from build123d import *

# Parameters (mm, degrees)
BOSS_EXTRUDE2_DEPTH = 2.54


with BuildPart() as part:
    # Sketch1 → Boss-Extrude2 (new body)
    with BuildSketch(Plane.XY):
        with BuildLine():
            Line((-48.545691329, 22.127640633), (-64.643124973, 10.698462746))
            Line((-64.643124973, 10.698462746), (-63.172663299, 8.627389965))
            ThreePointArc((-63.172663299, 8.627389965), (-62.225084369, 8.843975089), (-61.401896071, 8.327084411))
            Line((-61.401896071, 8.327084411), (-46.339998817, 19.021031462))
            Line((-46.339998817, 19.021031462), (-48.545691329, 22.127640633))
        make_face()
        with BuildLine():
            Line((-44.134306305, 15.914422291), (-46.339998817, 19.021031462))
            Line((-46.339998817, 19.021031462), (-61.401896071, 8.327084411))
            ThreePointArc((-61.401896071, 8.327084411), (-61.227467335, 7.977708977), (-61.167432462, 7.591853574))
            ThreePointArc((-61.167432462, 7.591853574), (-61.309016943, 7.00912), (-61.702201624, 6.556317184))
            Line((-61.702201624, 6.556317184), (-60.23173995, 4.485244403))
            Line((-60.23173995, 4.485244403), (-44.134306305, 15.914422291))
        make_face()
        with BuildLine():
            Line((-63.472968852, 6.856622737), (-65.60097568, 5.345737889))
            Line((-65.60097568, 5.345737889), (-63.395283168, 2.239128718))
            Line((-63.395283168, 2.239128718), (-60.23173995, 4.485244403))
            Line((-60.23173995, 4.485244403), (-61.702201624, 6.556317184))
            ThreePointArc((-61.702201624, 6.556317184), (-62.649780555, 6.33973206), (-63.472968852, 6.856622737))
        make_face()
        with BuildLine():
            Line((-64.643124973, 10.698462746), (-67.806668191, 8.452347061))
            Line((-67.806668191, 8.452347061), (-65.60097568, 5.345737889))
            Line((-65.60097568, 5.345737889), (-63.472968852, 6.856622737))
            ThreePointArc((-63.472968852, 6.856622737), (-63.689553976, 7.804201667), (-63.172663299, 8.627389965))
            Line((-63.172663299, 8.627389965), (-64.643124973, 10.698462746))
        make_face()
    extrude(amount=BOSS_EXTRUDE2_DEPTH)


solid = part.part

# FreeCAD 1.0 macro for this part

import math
import FreeCAD as App
import Part
import Sketcher

V = App.Vector
Q = App.Units.Quantity

doc = App.newDocument("Part")
body = doc.addObject("PartDesign::Body", "Body")

sketch1 = body.newObject("Sketcher::SketchObject", "Sketch")
sketch1.AttachmentSupport = (doc.getObject("XY_Plane"), [""])
sketch1.MapMode = "FlatFace"
sketch1.addGeometry([
    Part.LineSegment(V(-48.545691, 22.127641, 0), V(-64.643125, 10.698463, 0)),
    Part.LineSegment(V(-64.643125, 10.698463, 0), V(-67.806668, 8.452347, 0)),
    Part.LineSegment(V(-67.806668, 8.452347, 0), V(-65.600976, 5.345738, 0)),
    Part.LineSegment(V(-65.600976, 5.345738, 0), V(-63.395283, 2.239129, 0)),
    Part.LineSegment(V(-63.395283, 2.239129, 0), V(-60.23174, 4.485244, 0)),
    Part.LineSegment(V(-60.23174, 4.485244, 0), V(-44.134306, 15.914422, 0)),
    Part.LineSegment(V(-44.134306, 15.914422, 0), V(-48.545691, 22.127641, 0)),
    Part.ArcOfCircle(Part.Circle(V(-62.437432, 7.591854, 0), V(0, 0, 1), 1.27), math.radians(35.374752), math.radians(125.374752)),
    Part.ArcOfCircle(Part.Circle(V(-62.437432, 7.591854, 0), V(0, 0, 1), 1.27), math.radians(0), math.radians(35.374752)),
    Part.ArcOfCircle(Part.Circle(V(-62.437432, 7.591854, 0), V(0, 0, 1), 1.27), math.radians(-54.625248), math.radians(0)),
    Part.ArcOfCircle(Part.Circle(V(-62.437432, 7.591854, 0), V(0, 0, 1), 1.27), math.radians(-144.625248), math.radians(-54.625248)),
    Part.ArcOfCircle(Part.Circle(V(-62.437432, 7.591854, 0), V(0, 0, 1), 1.27), math.radians(125.374752), math.radians(215.374752)),
], False)
sketch1.addConstraint([
    Sketcher.Constraint("Coincident", 0, 2, 1, 1),
    Sketcher.Constraint("Coincident", 1, 2, 2, 1),
    Sketcher.Constraint("Coincident", 2, 2, 3, 1),
    Sketcher.Constraint("Coincident", 3, 2, 4, 1),
    Sketcher.Constraint("Coincident", 4, 2, 5, 1),
    Sketcher.Constraint("Coincident", 5, 2, 6, 1),
    Sketcher.Constraint("Coincident", 6, 2, 0, 1),
    Sketcher.Constraint("Tangent", 7, 1, 8, 2),
    Sketcher.Constraint("Tangent", 8, 1, 9, 2),
    Sketcher.Constraint("Tangent", 9, 1, 10, 2),
    Sketcher.Constraint("Tangent", 10, 1, 11, 2),
    Sketcher.Constraint("Tangent", 11, 1, 7, 2),
    Sketcher.Constraint("Coincident", 9, 3, 7, 3),
    Sketcher.Constraint("Parallel", 0, 1),
    Sketcher.Constraint("Perpendicular", 1, 2),
    Sketcher.Constraint("Parallel", 2, 3),
    Sketcher.Constraint("Perpendicular", 3, 4),
    Sketcher.Constraint("Parallel", 4, 5),
    Sketcher.Constraint("Perpendicular", 5, 6),
    Sketcher.Constraint("Horizontal", 11, 3, 8, 1),
    Sketcher.Constraint("Equal", 2, 3),
    Sketcher.Constraint("Equal", 1, 4),
    Sketcher.Constraint("Radius", 7, Q("0.05 in")),
    Sketcher.Constraint("Distance", 6, Q("0.3 in")),
    Sketcher.Constraint("DistanceX", 9, 1, -1, 1, Q("61.702202 mm")),
    Sketcher.Constraint("DistanceX", 1, 2, -1, 1, Q("67.806668 mm")),
    Sketcher.Constraint("DistanceY", -1, 1, 3, 2, Q("2.239129 mm")),
    Sketcher.Constraint("DistanceX", 4, 2, -1, 1, Q("60.23174 mm")),
    Sketcher.Constraint("DistanceX", 6, 2, -1, 1, Q("48.545691 mm")),
    Sketcher.Constraint("DistanceY", -1, 1, 6, 2, Q("22.127641 mm")),
    Sketcher.Constraint("DistanceX", 10, 1, -1, 1, Q("63.472969 mm")),
    Sketcher.Constraint("DistanceY", -1, 1, 11, 1, Q("8.62739 mm")),
    Sketcher.Constraint("DistanceY", 8, 3, 0, 2, Q("3.106609 mm")),
    Sketcher.Constraint("DistanceX", 3, 2, 9, 3, Q("0.957851 mm")),
    Sketcher.Constraint("DistanceY", 9, 3, 7, 1, Q("0.735231 mm")),
])
pad1 = body.newObject("PartDesign::Pad", "Pad")
pad1.Profile = sketch1
pad1.Length = Q("0.1 in")

doc.recompute()
